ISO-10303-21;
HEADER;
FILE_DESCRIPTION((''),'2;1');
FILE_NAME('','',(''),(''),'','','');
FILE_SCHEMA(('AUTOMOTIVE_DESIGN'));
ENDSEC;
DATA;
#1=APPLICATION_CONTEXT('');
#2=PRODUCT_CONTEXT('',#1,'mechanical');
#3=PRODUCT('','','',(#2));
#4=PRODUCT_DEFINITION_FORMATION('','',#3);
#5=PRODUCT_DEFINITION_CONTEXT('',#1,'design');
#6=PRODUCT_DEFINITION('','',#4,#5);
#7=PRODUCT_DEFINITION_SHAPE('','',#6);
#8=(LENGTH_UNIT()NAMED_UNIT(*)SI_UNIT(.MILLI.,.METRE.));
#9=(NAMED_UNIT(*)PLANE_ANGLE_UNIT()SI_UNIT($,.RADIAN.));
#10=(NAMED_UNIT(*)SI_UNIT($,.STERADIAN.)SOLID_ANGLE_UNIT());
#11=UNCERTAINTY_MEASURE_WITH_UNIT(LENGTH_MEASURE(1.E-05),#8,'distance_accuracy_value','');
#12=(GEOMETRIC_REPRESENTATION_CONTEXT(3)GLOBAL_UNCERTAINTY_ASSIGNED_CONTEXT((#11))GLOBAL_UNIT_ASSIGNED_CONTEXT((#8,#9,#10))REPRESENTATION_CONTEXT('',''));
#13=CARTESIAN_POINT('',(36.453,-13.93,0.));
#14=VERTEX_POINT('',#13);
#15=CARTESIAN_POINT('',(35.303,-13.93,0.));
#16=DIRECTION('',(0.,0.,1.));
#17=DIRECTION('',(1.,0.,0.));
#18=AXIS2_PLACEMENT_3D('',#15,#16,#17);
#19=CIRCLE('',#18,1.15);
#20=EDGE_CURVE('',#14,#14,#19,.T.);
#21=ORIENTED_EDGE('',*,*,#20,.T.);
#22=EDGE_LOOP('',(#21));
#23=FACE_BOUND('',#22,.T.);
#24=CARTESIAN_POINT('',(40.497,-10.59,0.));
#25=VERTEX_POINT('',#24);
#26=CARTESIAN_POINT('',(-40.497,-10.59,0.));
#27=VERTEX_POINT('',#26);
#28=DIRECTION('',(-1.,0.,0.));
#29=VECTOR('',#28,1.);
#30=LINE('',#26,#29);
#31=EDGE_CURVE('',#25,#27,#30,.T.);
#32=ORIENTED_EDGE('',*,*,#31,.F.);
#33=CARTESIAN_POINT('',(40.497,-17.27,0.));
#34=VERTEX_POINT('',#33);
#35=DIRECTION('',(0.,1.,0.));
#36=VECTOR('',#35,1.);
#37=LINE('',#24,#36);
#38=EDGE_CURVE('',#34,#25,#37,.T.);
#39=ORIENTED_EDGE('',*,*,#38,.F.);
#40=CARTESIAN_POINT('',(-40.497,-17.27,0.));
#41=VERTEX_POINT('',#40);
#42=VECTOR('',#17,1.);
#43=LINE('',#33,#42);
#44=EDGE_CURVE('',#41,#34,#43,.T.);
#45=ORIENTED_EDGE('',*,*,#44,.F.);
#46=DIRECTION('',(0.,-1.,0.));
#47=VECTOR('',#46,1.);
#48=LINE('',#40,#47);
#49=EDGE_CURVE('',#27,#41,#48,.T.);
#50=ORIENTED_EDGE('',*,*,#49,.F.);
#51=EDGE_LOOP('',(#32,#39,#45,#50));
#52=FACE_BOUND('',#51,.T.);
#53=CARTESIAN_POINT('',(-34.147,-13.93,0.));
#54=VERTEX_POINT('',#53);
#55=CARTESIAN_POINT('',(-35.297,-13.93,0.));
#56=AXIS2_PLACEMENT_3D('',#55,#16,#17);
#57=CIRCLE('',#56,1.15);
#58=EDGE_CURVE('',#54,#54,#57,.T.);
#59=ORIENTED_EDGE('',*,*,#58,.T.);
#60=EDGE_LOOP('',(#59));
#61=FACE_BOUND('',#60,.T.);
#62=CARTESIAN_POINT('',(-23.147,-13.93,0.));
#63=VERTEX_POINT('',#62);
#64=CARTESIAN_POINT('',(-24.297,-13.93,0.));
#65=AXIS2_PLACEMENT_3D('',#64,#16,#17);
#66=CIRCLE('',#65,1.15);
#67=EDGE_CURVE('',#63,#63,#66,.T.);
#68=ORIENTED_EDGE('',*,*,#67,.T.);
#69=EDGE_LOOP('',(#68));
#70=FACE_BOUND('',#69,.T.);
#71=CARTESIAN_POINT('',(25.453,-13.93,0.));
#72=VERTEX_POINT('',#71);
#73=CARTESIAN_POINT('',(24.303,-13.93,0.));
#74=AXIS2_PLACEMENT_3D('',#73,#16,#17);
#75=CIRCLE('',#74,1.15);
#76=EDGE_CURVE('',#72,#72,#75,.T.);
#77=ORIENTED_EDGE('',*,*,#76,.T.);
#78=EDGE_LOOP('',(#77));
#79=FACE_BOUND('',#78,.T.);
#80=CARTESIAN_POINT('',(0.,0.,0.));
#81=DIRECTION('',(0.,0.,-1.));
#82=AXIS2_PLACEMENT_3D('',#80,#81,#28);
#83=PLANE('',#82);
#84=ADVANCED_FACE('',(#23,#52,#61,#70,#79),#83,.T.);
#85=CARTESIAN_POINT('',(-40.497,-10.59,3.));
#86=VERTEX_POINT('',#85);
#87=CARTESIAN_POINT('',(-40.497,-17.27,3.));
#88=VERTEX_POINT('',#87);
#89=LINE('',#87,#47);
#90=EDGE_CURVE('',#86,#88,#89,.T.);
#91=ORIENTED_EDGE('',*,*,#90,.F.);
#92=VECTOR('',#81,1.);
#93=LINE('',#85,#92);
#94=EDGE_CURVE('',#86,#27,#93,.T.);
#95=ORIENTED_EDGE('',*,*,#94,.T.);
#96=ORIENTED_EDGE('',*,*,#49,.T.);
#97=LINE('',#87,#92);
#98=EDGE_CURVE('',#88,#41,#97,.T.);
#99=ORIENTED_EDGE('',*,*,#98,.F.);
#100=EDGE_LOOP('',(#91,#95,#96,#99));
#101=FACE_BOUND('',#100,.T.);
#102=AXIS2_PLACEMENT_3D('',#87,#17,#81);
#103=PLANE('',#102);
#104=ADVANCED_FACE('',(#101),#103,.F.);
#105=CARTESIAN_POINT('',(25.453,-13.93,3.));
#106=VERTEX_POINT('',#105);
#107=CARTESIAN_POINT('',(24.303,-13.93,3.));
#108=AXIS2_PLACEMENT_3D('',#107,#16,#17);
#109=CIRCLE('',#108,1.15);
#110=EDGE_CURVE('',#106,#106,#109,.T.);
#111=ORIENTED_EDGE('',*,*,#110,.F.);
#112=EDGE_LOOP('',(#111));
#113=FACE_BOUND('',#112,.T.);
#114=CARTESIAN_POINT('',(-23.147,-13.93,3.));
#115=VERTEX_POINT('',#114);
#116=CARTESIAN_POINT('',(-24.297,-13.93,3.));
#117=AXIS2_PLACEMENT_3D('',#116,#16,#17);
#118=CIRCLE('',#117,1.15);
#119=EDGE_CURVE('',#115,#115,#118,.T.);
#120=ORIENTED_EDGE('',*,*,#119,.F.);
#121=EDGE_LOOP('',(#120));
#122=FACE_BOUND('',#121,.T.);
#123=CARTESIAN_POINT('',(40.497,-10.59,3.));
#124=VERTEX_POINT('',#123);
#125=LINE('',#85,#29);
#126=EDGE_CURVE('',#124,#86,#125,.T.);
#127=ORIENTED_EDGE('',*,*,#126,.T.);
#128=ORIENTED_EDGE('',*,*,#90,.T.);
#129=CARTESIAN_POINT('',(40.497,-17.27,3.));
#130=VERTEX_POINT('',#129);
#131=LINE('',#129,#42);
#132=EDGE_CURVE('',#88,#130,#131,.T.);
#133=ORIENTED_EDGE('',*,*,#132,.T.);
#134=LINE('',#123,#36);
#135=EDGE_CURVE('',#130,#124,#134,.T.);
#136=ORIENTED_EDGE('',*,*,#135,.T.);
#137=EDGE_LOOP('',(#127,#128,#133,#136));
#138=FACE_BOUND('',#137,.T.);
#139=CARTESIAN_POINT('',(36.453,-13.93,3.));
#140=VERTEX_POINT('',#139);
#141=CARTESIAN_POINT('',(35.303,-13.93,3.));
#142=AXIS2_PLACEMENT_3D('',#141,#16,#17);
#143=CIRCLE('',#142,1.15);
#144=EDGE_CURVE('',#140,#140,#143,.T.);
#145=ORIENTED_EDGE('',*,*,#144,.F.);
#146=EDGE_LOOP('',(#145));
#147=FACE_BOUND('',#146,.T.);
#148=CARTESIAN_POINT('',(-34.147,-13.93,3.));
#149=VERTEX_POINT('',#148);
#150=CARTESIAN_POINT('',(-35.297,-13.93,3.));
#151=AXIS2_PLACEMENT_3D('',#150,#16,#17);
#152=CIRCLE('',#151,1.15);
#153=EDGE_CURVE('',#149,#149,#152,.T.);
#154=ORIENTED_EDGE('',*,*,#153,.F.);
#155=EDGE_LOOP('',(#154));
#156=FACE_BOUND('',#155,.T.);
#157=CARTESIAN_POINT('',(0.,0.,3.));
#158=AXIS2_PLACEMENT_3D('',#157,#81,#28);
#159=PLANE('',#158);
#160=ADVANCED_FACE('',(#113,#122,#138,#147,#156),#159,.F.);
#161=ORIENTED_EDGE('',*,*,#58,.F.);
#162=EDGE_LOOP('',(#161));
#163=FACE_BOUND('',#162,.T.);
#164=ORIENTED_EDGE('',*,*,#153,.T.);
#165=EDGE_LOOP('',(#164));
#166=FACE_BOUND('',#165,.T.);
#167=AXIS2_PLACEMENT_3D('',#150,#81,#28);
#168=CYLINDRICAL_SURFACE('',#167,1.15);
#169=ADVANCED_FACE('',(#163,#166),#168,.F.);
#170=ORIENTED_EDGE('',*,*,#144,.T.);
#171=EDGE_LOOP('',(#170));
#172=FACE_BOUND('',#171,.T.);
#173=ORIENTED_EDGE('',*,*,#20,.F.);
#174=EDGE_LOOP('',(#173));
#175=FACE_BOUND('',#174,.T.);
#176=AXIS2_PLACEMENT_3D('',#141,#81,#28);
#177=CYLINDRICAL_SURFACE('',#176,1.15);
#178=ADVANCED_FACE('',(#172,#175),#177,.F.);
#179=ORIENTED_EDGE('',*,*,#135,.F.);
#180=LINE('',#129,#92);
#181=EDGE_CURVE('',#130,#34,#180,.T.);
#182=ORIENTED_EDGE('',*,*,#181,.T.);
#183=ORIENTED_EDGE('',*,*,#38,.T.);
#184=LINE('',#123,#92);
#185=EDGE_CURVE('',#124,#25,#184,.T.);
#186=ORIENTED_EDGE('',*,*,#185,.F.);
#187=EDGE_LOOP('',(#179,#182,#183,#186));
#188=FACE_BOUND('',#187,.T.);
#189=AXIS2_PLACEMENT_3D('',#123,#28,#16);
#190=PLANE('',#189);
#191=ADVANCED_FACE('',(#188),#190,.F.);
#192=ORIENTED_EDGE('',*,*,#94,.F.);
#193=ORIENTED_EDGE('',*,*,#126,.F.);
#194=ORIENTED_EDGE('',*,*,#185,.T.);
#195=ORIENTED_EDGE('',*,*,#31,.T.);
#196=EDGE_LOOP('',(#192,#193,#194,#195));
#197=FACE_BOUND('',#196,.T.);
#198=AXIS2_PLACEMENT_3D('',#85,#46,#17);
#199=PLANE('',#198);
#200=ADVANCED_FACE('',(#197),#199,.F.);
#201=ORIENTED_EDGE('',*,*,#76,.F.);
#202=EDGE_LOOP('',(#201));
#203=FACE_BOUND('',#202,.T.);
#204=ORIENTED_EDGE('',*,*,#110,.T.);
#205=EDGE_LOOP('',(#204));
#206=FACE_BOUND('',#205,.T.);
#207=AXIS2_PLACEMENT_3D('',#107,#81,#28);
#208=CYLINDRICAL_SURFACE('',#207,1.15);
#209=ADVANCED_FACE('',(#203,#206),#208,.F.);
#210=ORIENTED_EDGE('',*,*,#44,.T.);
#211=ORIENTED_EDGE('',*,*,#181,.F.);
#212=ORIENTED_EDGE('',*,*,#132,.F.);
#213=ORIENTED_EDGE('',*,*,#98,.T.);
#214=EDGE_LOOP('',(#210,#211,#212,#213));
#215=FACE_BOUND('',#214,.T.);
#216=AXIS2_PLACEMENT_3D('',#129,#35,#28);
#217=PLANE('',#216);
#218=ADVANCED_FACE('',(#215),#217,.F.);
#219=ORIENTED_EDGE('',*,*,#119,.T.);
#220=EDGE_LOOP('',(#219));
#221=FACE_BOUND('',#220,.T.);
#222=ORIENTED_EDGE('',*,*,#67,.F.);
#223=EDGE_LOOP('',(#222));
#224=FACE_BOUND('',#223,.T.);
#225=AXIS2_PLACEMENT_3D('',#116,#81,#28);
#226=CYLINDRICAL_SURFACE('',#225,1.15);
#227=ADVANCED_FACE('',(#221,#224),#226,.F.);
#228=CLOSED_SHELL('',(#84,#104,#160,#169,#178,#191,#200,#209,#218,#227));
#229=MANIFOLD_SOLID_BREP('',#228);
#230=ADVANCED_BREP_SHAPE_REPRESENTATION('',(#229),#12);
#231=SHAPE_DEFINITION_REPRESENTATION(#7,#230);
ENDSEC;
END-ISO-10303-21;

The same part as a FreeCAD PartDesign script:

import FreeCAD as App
import Part
import Sketcher


def add_polygon(sketch, points):
    """Adds a closed chain of lines whose ends are joined by coincident constraints."""
    first, n = sketch.GeometryCount, len(points)
    for a, b in zip(points, points[1:] + points[:1]):
        sketch.addGeometry(Part.LineSegment(App.Vector(*a, 0), App.Vector(*b, 0)), False)
    for i in range(n):
        sketch.addConstraint(Sketcher.Constraint("Coincident", first + i, 2, first + (i + 1) % n, 1))

doc = App.newDocument("Part")
body = doc.addObject("PartDesign::Body", "Body")

# Sketch on XY plane
sketch1 = body.newObject("Sketcher::SketchObject", "Sketch")
sketch1.AttachmentSupport = (doc.getObject("XY_Plane"), [""])
sketch1.MapMode = "FlatFace"
add_polygon(sketch1, [(-40.5, -10.6), (-40.5, -17.3), (40.5, -17.3), (40.5, -10.6)])  # lines 0-3
sketch1.addGeometry(Part.Circle(App.Vector(-35.3, -13.9, 0), App.Vector(0, 0, 1), 1.1), False)  # 4
sketch1.addGeometry(Part.Circle(App.Vector(-24.3, -13.9, 0), App.Vector(0, 0, 1), 1.1), False)  # 5
sketch1.addGeometry(Part.Circle(App.Vector(24.3, -13.9, 0), App.Vector(0, 0, 1), 1.1), False)  # 6
sketch1.addGeometry(Part.Circle(App.Vector(35.3, -13.9, 0), App.Vector(0, 0, 1), 1.1), False)  # 7
sketch1.addConstraint([
    Sketcher.Constraint("Vertical", 0),
    Sketcher.Constraint("Horizontal", 1),
    Sketcher.Constraint("Vertical", 2),
    Sketcher.Constraint("Horizontal", 3),
    Sketcher.Constraint("Equal", 4, 5),
    Sketcher.Constraint("Equal", 5, 6),
    Sketcher.Constraint("Equal", 6, 7),
    Sketcher.Constraint("Horizontal", 4, 3, 5, 3),
    Sketcher.Constraint("Horizontal", 5, 3, 6, 3),
    Sketcher.Constraint("Horizontal", 6, 3, 7, 3),
    Sketcher.Constraint("Diameter", 4, 2.3),
    Sketcher.Constraint("DistanceX", 4, 3, 5, 3, 11.0),
    Sketcher.Constraint("DistanceX", 6, 3, 7, 3, 11.0),
    Sketcher.Constraint("DistanceY", 0, 2, 0, 1, 6.68),
    Sketcher.Constraint("DistanceX", 5, 3, 6, 3, 48.6),
    Sketcher.Constraint("DistanceX", 0, 2, 4, 3, 5.2),
    Sketcher.Constraint("DistanceX", 1, 1, 1, 2, 80.994),
    Sketcher.Constraint("DistanceY", 4, 3, -1, 1, 13.93),
    Sketcher.Constraint("DistanceY", 0, 2, -1, 1, 17.27),
    Sketcher.Constraint("DistanceX", 4, 3, -1, 1, 35.297),
])
pad1 = body.newObject("PartDesign::Pad", "Pad")
pad1.Profile = sketch1
pad1.Length = 3

doc.recompute()
